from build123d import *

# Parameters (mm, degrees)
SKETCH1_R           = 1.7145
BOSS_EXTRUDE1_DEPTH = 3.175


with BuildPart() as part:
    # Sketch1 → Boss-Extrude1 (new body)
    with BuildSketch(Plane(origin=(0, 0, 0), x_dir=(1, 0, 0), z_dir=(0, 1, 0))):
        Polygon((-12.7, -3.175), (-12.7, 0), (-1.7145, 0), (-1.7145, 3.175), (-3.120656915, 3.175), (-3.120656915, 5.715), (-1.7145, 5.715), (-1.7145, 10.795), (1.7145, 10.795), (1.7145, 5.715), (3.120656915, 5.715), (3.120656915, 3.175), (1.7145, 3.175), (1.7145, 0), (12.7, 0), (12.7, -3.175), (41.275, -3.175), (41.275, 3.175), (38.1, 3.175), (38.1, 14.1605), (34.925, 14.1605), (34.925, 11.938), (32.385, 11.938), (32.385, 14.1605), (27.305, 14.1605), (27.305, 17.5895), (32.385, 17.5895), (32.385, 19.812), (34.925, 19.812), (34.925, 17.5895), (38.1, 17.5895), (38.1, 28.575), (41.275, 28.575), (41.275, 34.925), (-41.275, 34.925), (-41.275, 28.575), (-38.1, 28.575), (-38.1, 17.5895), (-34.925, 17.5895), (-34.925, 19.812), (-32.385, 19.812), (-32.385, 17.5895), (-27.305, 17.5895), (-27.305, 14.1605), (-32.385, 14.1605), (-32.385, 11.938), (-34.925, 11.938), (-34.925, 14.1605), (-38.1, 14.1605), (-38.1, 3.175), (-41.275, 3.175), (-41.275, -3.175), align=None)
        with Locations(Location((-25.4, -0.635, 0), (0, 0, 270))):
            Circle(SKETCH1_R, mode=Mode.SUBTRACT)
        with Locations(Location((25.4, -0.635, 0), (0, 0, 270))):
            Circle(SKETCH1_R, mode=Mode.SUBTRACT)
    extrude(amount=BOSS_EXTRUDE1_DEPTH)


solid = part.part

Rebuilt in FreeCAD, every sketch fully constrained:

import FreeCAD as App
import Part
import Sketcher

V = App.Vector
Q = App.Units.Quantity


def add_polygon(sketch, points):
    """Adds a closed chain of lines whose ends are joined by coincident constraints."""
    first, n = sketch.GeometryCount, len(points)
    for a, b in zip(points, points[1:] + points[:1]):
        sketch.addGeometry(Part.LineSegment(App.Vector(*a, 0), App.Vector(*b, 0)), False)
    for i in range(n):
        sketch.addConstraint(Sketcher.Constraint("Coincident", first + i, 2, first + (i + 1) % n, 1))

doc = App.newDocument("Part")
body = doc.addObject("PartDesign::Body", "Body")

sketch1 = doc.addObject("Sketcher::SketchObject", "Sketch")
body.addObject(sketch1)
sketch1.AttachmentSupport = (doc.XZ_Plane, [""])
sketch1.MapMode = "FlatFace"
add_polygon(sketch1, [(-12.7, 3.2), (-12.7, 0), (-1.7, 0), (-1.7, -3.2), (-3.1, -3.2), (-3.1, -5.7), (-1.7, -5.7), (-1.7, -10.8), (1.7, -10.8), (1.7, -5.7), (3.1, -5.7), (3.1, -3.2), (1.7, -3.2), (1.7, 0), (12.7, 0), (12.7, 3.2), (41.3, 3.2), (41.3, -3.2), (38.1, -3.2), (38.1, -14.2), (34.9, -14.2), (34.9, -11.9), (32.4, -11.9), (32.4, -14.2), (27.3, -14.2), (27.3, -17.6), (32.4, -17.6), (32.4, -19.8), (34.9, -19.8), (34.9, -17.6), (38.1, -17.6), (38.1, -28.6), (41.3, -28.6), (41.3, -34.9), (-41.3, -34.9), (-41.3, -28.6), (-38.1, -28.6), (-38.1, -17.6), (-34.9, -17.6), (-34.9, -19.8), (-32.4, -19.8), (-32.4, -17.6), (-27.3, -17.6), (-27.3, -14.2), (-32.4, -14.2), (-32.4, -11.9), (-34.9, -11.9), (-34.9, -14.2), (-38.1, -14.2), (-38.1, -3.2), (-41.3, -3.2), (-41.3, 3.2)])
sketch1.addGeometry(Part.Circle(V(-25.4, 0.6, 0), V(0, 0, 1), 1.7), False)
sketch1.addGeometry(Part.Circle(V(25.4, 0.6, 0), V(0, 0, 1), 1.7), False)
sketch1.addConstraint(Sketcher.Constraint("Vertical", 0))
sketch1.addConstraint(Sketcher.Constraint("Horizontal", 1))
sketch1.addConstraint(Sketcher.Constraint("Vertical", 2))
sketch1.addConstraint(Sketcher.Constraint("Horizontal", 3))
sketch1.addConstraint(Sketcher.Constraint("Vertical", 4))
sketch1.addConstraint(Sketcher.Constraint("Horizontal", 5))
sketch1.addConstraint(Sketcher.Constraint("Vertical", 6))
sketch1.addConstraint(Sketcher.Constraint("Horizontal", 7))
sketch1.addConstraint(Sketcher.Constraint("Vertical", 8))
sketch1.addConstraint(Sketcher.Constraint("Horizontal", 9))
sketch1.addConstraint(Sketcher.Constraint("Vertical", 10))
sketch1.addConstraint(Sketcher.Constraint("Horizontal", 11))
sketch1.addConstraint(Sketcher.Constraint("Vertical", 12))
sketch1.addConstraint(Sketcher.Constraint("Horizontal", 13))
sketch1.addConstraint(Sketcher.Constraint("Vertical", 14))
sketch1.addConstraint(Sketcher.Constraint("Horizontal", 15))
sketch1.addConstraint(Sketcher.Constraint("Vertical", 16))
sketch1.addConstraint(Sketcher.Constraint("Horizontal", 17))
sketch1.addConstraint(Sketcher.Constraint("Vertical", 18))
sketch1.addConstraint(Sketcher.Constraint("Horizontal", 19))
sketch1.addConstraint(Sketcher.Constraint("Vertical", 20))
sketch1.addConstraint(Sketcher.Constraint("Horizontal", 21))
sketch1.addConstraint(Sketcher.Constraint("Vertical", 22))
sketch1.addConstraint(Sketcher.Constraint("Horizontal", 23))
sketch1.addConstraint(Sketcher.Constraint("Vertical", 24))
sketch1.addConstraint(Sketcher.Constraint("Horizontal", 25))
sketch1.addConstraint(Sketcher.Constraint("Vertical", 26))
sketch1.addConstraint(Sketcher.Constraint("Horizontal", 27))
sketch1.addConstraint(Sketcher.Constraint("Vertical", 28))
sketch1.addConstraint(Sketcher.Constraint("Horizontal", 29))
sketch1.addConstraint(Sketcher.Constraint("Vertical", 30))
sketch1.addConstraint(Sketcher.Constraint("Horizontal", 31))
sketch1.addConstraint(Sketcher.Constraint("Vertical", 32))
sketch1.addConstraint(Sketcher.Constraint("Horizontal", 33))
sketch1.addConstraint(Sketcher.Constraint("Vertical", 34))
sketch1.addConstraint(Sketcher.Constraint("Horizontal", 35))
sketch1.addConstraint(Sketcher.Constraint("Vertical", 36))
sketch1.addConstraint(Sketcher.Constraint("Horizontal", 37))
sketch1.addConstraint(Sketcher.Constraint("Vertical", 38))
sketch1.addConstraint(Sketcher.Constraint("Horizontal", 39))
sketch1.addConstraint(Sketcher.Constraint("Vertical", 40))
sketch1.addConstraint(Sketcher.Constraint("Horizontal", 41))
sketch1.addConstraint(Sketcher.Constraint("Vertical", 42))
sketch1.addConstraint(Sketcher.Constraint("Horizontal", 43))
sketch1.addConstraint(Sketcher.Constraint("Vertical", 44))
sketch1.addConstraint(Sketcher.Constraint("Horizontal", 45))
sketch1.addConstraint(Sketcher.Constraint("Vertical", 46))
sketch1.addConstraint(Sketcher.Constraint("Horizontal", 47))
sketch1.addConstraint(Sketcher.Constraint("Vertical", 48))
sketch1.addConstraint(Sketcher.Constraint("Horizontal", 49))
sketch1.addConstraint(Sketcher.Constraint("Vertical", 50))
sketch1.addConstraint(Sketcher.Constraint("Horizontal", 51))
sketch1.addConstraint(Sketcher.Constraint("Equal", 52, 53))
sketch1.addConstraint(Sketcher.Constraint("Symmetric", 1, 2, 12, 2, -1, 1))
sketch1.addConstraint(Sketcher.Constraint("Symmetric", 15, 2, 49, 2, -1, 1))
sketch1.addConstraint(Sketcher.Constraint("Symmetric", 52, 3, 53, 3, -2))
sketch1.addConstraint(Sketcher.Constraint("Symmetric", 5, 2, 8, 2, -2))
sketch1.addConstraint(Sketcher.Constraint("Symmetric", 3, 2, 10, 2, -2))
sketch1.addConstraint(Sketcher.Constraint("Symmetric", 0, 2, 13, 2, -2))
sketch1.addConstraint(Sketcher.Constraint("Symmetric", 31, 2, 34, 2, -2))
sketch1.addConstraint(Sketcher.Constraint("Symmetric", 29, 2, 36, 2, -2))
sketch1.addConstraint(Sketcher.Constraint("Symmetric", 27, 2, 38, 2, -2))
sketch1.addConstraint(Sketcher.Constraint("Symmetric", 25, 2, 40, 2, -2))
sketch1.addConstraint(Sketcher.Constraint("Symmetric", 23, 2, 42, 2, -2))
sketch1.addConstraint(Sketcher.Constraint("Symmetric", 21, 2, 44, 2, -2))
sketch1.addConstraint(Sketcher.Constraint("Symmetric", 19, 2, 46, 2, -2))
sketch1.addConstraint(Sketcher.Constraint("Symmetric", 17, 2, 48, 2, -2))
sketch1.addConstraint(Sketcher.Constraint("Horizontal", 11, 2, 16, 2))
sketch1.addConstraint(Sketcher.Constraint("Horizontal", 19, 2, 22, 2))
sketch1.addConstraint(Sketcher.Constraint("Horizontal", 25, 2, 28, 2))
sketch1.addConstraint(Sketcher.Constraint("Horizontal", 15, 2, 50, 2))
sketch1.addConstraint(Sketcher.Constraint("Vertical", 2, 2, 5, 2))
sketch1.addConstraint(Sketcher.Constraint("Vertical", 22, 2, 25, 2))
sketch1.addConstraint(Sketcher.Constraint("Vertical", 20, 2, 27, 2))
sketch1.addConstraint(Sketcher.Constraint("Vertical", 18, 2, 29, 2))
sketch1.addConstraint(Sketcher.Constraint("Vertical", 16, 2, 31, 2))
sketch1.addConstraint(Sketcher.Constraint("Equal", 17, 19))
sketch1.addConstraint(Sketcher.Constraint("Equal", 49, 0))
sketch1.addConstraint(Sketcher.Constraint("Equal", 45, 4))
sketch1.addConstraint(Sketcher.Constraint("Equal", 43, 6))
sketch1.addConstraint(Sketcher.Constraint("Equal", 13, 18))
sketch1.addConstraint(Sketcher.Constraint("Equal", 7, 24))
sketch1.addConstraint(Sketcher.Constraint("Equal", 22, 26))
sketch1.addConstraint(Sketcher.Constraint("Equal", 18, 30))
sketch1.addConstraint(Sketcher.Constraint("Equal", 16, 32))
sketch1.addConstraint(Sketcher.Constraint("Diameter", 52, Q("0.135 in")))
sketch1.addConstraint(Sketcher.Constraint("DistanceX", 21, 2, 21, 1, Q("0.1 in")))
sketch1.addConstraint(Sketcher.Constraint("DistanceX", 23, 2, 23, 1, Q("0.2 in")))
sketch1.addConstraint(Sketcher.Constraint("DistanceX", 52, 3, -1, 1, Q("1 in")))
sketch1.addConstraint(Sketcher.Constraint("DistanceX", 13, 2, 17, 2, Q("1 in")))
sketch1.addConstraint(Sketcher.Constraint("DistanceX", 33, 2, 33, 1, Q("3.25 in")))
sketch1.addConstraint(Sketcher.Constraint("DistanceY", 16, 2, 16, 1, Q("0.25 in")))
sketch1.addConstraint(Sketcher.Constraint("DistanceY", 53, 3, 14, 2, Q("0.1 in")))
sketch1.addConstraint(Sketcher.Constraint("DistanceX", 7, 1, 7, 2, Q("0.135 in")))
sketch1.addConstraint(Sketcher.Constraint("DistanceY", 20, 2, -1, 1, Q("0.47 in")))
sketch1.addConstraint(Sketcher.Constraint("DistanceX", 3, 2, 3, 1, 1.406157))
pad1 = doc.addObject("PartDesign::Pad", "Pad")
body.addObject(pad1)
pad1.Profile = sketch1
pad1.Length = Q("0.125 in")
pad1.Reversed = True

doc.recompute()
